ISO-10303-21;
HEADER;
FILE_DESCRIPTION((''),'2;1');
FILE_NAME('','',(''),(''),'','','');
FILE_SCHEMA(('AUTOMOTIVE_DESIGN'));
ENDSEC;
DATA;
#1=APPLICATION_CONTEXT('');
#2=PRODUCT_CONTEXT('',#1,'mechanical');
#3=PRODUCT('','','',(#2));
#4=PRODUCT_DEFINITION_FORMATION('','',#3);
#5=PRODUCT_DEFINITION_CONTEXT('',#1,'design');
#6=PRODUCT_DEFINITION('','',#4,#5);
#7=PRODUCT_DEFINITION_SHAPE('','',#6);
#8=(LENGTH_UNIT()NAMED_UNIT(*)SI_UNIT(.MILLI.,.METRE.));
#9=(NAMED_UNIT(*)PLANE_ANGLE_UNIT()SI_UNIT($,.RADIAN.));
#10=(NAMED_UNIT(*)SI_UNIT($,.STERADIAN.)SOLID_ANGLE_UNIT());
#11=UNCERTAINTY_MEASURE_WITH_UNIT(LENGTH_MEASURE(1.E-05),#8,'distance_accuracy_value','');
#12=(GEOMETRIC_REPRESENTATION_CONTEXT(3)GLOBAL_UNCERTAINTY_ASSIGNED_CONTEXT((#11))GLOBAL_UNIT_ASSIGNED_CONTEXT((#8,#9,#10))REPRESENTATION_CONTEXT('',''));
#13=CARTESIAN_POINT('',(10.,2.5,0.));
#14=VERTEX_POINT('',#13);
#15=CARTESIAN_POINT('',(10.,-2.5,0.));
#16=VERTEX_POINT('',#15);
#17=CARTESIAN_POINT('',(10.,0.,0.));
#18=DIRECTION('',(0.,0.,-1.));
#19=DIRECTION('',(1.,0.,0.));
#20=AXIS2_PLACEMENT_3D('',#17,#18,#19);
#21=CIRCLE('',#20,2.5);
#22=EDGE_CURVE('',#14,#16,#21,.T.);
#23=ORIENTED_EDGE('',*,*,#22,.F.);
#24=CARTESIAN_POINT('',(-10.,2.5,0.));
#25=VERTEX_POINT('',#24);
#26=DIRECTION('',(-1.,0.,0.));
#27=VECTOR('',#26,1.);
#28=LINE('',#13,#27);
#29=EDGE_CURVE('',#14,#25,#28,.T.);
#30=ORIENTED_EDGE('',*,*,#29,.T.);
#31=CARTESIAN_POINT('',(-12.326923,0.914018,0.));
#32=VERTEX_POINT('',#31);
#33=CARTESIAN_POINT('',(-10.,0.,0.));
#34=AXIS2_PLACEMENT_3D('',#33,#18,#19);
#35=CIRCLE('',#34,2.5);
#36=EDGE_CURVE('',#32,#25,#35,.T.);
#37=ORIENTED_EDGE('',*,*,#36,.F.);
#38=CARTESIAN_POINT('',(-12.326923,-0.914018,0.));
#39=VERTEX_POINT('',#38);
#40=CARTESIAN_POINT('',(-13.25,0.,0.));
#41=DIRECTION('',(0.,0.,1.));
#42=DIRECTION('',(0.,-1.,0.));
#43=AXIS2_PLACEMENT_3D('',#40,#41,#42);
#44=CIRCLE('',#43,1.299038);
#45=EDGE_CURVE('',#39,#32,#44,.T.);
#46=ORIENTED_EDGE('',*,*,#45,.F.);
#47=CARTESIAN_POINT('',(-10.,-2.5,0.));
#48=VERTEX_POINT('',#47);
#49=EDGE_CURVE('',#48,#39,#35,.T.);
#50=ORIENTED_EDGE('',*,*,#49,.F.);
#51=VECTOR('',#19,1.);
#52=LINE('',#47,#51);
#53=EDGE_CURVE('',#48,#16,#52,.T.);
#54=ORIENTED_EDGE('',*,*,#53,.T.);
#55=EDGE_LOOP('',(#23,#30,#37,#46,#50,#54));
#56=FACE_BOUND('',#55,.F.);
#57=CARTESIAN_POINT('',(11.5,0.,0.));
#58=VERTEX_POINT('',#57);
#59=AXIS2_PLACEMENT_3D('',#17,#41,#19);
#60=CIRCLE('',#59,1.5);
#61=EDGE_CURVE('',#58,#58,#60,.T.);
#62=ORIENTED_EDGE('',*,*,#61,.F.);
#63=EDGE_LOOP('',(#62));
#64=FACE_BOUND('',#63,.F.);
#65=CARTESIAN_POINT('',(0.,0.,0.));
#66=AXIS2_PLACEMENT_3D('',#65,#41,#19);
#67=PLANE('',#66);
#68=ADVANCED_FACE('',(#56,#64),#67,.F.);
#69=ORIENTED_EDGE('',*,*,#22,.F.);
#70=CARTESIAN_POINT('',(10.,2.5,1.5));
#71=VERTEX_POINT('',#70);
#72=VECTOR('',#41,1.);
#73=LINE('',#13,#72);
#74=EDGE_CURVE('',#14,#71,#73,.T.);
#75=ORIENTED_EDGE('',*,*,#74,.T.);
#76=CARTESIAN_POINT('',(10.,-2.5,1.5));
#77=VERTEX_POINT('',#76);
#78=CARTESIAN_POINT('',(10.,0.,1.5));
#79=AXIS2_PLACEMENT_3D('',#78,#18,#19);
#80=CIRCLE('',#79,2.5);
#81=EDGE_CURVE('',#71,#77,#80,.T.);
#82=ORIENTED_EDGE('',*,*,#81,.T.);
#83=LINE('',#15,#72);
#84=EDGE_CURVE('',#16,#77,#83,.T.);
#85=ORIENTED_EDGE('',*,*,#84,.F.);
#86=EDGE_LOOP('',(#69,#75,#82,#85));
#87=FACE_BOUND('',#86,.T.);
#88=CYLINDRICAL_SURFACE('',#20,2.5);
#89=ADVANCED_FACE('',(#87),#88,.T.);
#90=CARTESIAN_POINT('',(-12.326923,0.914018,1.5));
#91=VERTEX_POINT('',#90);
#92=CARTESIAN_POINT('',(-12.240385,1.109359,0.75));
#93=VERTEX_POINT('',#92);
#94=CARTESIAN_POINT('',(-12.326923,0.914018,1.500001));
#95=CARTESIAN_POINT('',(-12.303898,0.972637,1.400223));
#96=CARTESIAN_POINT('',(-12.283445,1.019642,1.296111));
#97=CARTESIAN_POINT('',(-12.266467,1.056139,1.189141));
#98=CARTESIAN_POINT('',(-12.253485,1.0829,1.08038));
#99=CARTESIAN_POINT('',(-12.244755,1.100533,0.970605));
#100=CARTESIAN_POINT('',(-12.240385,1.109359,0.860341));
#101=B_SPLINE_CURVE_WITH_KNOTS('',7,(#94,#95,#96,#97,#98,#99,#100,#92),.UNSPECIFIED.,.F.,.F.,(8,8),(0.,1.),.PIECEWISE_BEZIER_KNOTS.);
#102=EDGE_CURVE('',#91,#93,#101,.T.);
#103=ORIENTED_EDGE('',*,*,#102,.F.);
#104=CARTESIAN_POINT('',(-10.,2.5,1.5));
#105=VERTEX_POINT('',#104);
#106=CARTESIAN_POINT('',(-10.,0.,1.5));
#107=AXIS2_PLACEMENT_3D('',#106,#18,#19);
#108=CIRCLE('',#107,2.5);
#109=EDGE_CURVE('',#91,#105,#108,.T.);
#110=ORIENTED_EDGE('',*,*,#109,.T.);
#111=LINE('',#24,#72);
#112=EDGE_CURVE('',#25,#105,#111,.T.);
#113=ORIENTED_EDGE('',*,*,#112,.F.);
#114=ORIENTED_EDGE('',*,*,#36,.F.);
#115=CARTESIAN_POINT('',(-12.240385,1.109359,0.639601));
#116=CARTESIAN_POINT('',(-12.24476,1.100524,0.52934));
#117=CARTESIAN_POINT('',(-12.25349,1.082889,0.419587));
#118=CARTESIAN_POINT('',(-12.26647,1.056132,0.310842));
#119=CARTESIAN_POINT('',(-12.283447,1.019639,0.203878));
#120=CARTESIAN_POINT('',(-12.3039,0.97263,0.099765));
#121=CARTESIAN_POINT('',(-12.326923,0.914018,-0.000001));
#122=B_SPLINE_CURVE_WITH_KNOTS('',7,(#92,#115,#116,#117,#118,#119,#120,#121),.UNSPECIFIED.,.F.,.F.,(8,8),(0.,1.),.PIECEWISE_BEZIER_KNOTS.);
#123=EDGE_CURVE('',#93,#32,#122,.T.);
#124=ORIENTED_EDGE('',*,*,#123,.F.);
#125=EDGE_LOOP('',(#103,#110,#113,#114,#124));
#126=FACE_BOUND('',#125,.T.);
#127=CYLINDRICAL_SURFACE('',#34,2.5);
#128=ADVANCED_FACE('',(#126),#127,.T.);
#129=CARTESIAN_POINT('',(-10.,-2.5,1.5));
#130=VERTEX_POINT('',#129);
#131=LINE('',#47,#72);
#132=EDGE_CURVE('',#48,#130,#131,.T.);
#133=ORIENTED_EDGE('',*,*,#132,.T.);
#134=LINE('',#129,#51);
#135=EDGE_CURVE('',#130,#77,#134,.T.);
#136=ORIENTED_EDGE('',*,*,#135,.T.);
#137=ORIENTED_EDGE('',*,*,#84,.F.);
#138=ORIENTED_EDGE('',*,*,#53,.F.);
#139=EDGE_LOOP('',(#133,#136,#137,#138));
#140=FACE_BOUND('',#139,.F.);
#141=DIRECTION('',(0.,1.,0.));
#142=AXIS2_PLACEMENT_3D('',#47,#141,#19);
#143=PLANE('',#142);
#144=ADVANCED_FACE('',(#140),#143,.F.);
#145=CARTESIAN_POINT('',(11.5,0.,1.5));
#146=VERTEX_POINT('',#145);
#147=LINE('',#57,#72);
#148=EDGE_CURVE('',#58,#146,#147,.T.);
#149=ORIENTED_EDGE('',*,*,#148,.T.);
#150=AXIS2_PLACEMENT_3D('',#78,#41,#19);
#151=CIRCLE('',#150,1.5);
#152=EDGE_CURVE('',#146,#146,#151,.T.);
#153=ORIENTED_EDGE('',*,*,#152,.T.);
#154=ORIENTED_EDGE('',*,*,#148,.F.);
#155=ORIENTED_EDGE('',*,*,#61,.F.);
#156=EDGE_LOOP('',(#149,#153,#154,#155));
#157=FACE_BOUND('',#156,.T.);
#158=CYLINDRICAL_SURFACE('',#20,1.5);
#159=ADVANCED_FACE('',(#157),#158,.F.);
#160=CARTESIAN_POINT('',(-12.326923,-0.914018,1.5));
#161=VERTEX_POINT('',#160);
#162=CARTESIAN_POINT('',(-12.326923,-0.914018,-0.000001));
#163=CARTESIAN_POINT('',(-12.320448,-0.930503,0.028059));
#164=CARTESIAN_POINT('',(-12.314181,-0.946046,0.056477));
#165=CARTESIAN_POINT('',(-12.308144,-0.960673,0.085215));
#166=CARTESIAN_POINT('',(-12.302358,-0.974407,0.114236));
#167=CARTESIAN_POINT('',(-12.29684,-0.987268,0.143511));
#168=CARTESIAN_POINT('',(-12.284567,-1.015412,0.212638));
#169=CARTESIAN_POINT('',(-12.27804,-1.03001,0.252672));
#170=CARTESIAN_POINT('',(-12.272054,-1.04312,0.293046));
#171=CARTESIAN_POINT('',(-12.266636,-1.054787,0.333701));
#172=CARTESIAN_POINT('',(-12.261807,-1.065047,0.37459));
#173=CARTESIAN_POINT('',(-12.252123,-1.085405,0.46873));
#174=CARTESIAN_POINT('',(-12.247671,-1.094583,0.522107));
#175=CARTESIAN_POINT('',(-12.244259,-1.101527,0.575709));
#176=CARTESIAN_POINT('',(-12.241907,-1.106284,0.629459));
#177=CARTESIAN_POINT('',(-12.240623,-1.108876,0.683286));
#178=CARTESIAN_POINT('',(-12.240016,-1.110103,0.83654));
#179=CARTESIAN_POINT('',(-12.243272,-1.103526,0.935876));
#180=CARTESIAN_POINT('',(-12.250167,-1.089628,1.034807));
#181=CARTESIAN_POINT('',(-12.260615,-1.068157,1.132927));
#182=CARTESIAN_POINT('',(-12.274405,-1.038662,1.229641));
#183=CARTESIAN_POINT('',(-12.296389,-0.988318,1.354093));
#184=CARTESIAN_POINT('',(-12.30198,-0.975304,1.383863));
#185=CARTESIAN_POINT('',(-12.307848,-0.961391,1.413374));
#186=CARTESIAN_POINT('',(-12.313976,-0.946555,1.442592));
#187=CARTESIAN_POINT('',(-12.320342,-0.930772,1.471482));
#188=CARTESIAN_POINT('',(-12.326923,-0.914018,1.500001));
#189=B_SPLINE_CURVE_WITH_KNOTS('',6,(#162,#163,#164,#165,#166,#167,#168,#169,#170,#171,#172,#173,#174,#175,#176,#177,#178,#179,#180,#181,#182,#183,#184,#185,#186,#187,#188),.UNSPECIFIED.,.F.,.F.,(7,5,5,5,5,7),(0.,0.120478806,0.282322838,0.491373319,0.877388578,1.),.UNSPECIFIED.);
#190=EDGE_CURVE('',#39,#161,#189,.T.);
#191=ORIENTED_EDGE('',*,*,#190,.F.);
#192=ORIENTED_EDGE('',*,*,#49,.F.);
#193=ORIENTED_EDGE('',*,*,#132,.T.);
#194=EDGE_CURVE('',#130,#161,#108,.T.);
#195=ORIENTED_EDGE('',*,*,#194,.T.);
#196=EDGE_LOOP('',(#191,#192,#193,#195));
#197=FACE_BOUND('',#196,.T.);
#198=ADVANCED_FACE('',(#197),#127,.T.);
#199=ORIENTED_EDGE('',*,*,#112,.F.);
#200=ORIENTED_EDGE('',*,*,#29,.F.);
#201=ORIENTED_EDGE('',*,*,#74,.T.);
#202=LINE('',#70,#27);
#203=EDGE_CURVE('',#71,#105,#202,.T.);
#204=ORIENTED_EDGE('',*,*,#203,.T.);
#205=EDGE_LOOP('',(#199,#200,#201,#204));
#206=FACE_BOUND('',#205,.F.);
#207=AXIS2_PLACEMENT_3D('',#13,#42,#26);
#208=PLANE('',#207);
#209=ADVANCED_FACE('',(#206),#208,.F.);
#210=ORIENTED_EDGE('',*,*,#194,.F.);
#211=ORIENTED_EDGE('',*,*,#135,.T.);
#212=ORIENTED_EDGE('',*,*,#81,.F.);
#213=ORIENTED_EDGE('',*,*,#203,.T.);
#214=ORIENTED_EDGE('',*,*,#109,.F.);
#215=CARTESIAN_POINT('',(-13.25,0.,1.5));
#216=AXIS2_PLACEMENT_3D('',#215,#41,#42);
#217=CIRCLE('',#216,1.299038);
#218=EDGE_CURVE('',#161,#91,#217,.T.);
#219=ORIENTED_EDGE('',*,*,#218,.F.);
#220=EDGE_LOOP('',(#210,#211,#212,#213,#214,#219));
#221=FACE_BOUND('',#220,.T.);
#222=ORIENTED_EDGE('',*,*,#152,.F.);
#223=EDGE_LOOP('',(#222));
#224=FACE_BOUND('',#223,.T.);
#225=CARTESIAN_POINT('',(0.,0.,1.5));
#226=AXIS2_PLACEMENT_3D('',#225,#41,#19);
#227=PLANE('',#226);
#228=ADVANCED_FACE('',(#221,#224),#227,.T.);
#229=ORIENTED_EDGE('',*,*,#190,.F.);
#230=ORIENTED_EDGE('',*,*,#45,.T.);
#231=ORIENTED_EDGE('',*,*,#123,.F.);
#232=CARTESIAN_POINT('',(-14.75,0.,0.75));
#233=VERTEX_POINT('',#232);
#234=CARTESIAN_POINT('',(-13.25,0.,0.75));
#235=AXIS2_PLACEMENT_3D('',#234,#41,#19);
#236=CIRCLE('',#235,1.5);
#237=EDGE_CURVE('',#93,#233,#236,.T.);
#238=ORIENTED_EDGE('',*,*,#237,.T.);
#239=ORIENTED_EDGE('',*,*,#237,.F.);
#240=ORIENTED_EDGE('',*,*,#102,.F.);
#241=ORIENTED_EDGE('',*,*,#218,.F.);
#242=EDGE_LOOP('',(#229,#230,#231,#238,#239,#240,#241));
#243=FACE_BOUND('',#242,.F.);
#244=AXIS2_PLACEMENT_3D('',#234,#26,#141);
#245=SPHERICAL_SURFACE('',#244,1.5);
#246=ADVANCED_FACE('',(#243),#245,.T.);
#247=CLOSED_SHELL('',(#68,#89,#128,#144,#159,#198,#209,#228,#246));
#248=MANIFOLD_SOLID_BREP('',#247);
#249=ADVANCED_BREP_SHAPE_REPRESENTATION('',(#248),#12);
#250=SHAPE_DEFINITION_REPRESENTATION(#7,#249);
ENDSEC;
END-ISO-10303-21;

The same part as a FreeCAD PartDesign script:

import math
import FreeCAD as App
import Part
import Sketcher
Q = App.Units.Quantity

doc = App.newDocument("Part")
body = doc.addObject("PartDesign::Body", "Body")

# Sketch on XY plane
sketch1 = doc.addObject("Sketcher::SketchObject", "Sketch")
body.addObject(sketch1)
sketch1.AttachmentSupport = (doc.XY_Plane, [""])
sketch1.MapMode = "FlatFace"
sketch1.addGeometry([
    Part.ArcOfCircle(Part.Circle(App.Vector(10, 0, 0), App.Vector(0, 0, 1), 2.5), math.radians(-90), math.radians(90)),  # 0
    Part.LineSegment(App.Vector(10, 2.5, 0), App.Vector(-10, 2.5, 0)),  # 1
    Part.ArcOfCircle(Part.Circle(App.Vector(-10, 0, 0), App.Vector(0, 0, 1), 2.5), math.radians(90), math.radians(270)),  # 2
    Part.LineSegment(App.Vector(-10, -2.5, 0), App.Vector(10, -2.5, 0)),  # 3
    Part.Circle(App.Vector(10, 0, 0), App.Vector(0, 0, 1), 1.5),  # 4
], False)
sketch1.addConstraint([
    Sketcher.Constraint("Tangent", 0, 2, 1, 1),
    Sketcher.Constraint("Tangent", 1, 2, 2, 1),
    Sketcher.Constraint("Tangent", 2, 2, 3, 1),
    Sketcher.Constraint("Tangent", 3, 2, 0, 1),
    Sketcher.Constraint("Horizontal", 1),
    Sketcher.Constraint("Horizontal", 3),
    Sketcher.Constraint("Coincident", 4, 3, 0, 3),
    Sketcher.Constraint("Symmetric", 0, 3, 2, 3, -1, 1),
    Sketcher.Constraint("Diameter", 4, Q("3 mm")),
    Sketcher.Constraint("Radius", 0, Q("2.5 mm")),
    Sketcher.Constraint("DistanceX", 1, 2, 1, 1, Q("20 mm")),
])
pad1 = doc.addObject("PartDesign::Pad", "Pad")
body.addObject(pad1)
pad1.Profile = sketch1
pad1.Length = 1.5

# Sketch on XY plane
sketch2 = doc.addObject("Sketcher::SketchObject", "Sketch001")
body.addObject(sketch2)
sketch2.AttachmentSupport = (doc.XY_Plane, [""])
sketch2.MapMode = "FlatFace"
sketch2.AttachmentOffset = App.Placement(App.Vector(0, 0, 0.75), App.Rotation())
sketch2.addGeometry([
    Part.LineSegment(App.Vector(-11.8, 0, 0), App.Vector(-14.8, 0, 0)),
    Part.ArcOfCircle(Part.Circle(App.Vector(-13.2, 0, 0), App.Vector(0, 0, 1), 1.5), math.radians(0), math.radians(180)),
], False)
sketch2.addConstraint([
    Sketcher.Constraint("Coincident", 0, 1, 1, 1),
    Sketcher.Constraint("Coincident", 1, 2, 0, 2),
    Sketcher.Constraint("Horizontal", 0),
    Sketcher.Constraint("PointOnObject", 1, 3, -1),
    Sketcher.Constraint("PointOnObject", 0, 1, -1),
    Sketcher.Constraint("Radius", 1, Q("1.5 mm")),
    Sketcher.Constraint("DistanceX", 1, 3, -1, 1, Q("13.25 mm")),
])
revolution = doc.addObject("PartDesign::Revolution", "Revolution")
body.addObject(revolution)
revolution.Profile = sketch2
revolution.ReferenceAxis = (sketch2, ["H_Axis"])
revolution.Angle = 360

doc.recompute()
